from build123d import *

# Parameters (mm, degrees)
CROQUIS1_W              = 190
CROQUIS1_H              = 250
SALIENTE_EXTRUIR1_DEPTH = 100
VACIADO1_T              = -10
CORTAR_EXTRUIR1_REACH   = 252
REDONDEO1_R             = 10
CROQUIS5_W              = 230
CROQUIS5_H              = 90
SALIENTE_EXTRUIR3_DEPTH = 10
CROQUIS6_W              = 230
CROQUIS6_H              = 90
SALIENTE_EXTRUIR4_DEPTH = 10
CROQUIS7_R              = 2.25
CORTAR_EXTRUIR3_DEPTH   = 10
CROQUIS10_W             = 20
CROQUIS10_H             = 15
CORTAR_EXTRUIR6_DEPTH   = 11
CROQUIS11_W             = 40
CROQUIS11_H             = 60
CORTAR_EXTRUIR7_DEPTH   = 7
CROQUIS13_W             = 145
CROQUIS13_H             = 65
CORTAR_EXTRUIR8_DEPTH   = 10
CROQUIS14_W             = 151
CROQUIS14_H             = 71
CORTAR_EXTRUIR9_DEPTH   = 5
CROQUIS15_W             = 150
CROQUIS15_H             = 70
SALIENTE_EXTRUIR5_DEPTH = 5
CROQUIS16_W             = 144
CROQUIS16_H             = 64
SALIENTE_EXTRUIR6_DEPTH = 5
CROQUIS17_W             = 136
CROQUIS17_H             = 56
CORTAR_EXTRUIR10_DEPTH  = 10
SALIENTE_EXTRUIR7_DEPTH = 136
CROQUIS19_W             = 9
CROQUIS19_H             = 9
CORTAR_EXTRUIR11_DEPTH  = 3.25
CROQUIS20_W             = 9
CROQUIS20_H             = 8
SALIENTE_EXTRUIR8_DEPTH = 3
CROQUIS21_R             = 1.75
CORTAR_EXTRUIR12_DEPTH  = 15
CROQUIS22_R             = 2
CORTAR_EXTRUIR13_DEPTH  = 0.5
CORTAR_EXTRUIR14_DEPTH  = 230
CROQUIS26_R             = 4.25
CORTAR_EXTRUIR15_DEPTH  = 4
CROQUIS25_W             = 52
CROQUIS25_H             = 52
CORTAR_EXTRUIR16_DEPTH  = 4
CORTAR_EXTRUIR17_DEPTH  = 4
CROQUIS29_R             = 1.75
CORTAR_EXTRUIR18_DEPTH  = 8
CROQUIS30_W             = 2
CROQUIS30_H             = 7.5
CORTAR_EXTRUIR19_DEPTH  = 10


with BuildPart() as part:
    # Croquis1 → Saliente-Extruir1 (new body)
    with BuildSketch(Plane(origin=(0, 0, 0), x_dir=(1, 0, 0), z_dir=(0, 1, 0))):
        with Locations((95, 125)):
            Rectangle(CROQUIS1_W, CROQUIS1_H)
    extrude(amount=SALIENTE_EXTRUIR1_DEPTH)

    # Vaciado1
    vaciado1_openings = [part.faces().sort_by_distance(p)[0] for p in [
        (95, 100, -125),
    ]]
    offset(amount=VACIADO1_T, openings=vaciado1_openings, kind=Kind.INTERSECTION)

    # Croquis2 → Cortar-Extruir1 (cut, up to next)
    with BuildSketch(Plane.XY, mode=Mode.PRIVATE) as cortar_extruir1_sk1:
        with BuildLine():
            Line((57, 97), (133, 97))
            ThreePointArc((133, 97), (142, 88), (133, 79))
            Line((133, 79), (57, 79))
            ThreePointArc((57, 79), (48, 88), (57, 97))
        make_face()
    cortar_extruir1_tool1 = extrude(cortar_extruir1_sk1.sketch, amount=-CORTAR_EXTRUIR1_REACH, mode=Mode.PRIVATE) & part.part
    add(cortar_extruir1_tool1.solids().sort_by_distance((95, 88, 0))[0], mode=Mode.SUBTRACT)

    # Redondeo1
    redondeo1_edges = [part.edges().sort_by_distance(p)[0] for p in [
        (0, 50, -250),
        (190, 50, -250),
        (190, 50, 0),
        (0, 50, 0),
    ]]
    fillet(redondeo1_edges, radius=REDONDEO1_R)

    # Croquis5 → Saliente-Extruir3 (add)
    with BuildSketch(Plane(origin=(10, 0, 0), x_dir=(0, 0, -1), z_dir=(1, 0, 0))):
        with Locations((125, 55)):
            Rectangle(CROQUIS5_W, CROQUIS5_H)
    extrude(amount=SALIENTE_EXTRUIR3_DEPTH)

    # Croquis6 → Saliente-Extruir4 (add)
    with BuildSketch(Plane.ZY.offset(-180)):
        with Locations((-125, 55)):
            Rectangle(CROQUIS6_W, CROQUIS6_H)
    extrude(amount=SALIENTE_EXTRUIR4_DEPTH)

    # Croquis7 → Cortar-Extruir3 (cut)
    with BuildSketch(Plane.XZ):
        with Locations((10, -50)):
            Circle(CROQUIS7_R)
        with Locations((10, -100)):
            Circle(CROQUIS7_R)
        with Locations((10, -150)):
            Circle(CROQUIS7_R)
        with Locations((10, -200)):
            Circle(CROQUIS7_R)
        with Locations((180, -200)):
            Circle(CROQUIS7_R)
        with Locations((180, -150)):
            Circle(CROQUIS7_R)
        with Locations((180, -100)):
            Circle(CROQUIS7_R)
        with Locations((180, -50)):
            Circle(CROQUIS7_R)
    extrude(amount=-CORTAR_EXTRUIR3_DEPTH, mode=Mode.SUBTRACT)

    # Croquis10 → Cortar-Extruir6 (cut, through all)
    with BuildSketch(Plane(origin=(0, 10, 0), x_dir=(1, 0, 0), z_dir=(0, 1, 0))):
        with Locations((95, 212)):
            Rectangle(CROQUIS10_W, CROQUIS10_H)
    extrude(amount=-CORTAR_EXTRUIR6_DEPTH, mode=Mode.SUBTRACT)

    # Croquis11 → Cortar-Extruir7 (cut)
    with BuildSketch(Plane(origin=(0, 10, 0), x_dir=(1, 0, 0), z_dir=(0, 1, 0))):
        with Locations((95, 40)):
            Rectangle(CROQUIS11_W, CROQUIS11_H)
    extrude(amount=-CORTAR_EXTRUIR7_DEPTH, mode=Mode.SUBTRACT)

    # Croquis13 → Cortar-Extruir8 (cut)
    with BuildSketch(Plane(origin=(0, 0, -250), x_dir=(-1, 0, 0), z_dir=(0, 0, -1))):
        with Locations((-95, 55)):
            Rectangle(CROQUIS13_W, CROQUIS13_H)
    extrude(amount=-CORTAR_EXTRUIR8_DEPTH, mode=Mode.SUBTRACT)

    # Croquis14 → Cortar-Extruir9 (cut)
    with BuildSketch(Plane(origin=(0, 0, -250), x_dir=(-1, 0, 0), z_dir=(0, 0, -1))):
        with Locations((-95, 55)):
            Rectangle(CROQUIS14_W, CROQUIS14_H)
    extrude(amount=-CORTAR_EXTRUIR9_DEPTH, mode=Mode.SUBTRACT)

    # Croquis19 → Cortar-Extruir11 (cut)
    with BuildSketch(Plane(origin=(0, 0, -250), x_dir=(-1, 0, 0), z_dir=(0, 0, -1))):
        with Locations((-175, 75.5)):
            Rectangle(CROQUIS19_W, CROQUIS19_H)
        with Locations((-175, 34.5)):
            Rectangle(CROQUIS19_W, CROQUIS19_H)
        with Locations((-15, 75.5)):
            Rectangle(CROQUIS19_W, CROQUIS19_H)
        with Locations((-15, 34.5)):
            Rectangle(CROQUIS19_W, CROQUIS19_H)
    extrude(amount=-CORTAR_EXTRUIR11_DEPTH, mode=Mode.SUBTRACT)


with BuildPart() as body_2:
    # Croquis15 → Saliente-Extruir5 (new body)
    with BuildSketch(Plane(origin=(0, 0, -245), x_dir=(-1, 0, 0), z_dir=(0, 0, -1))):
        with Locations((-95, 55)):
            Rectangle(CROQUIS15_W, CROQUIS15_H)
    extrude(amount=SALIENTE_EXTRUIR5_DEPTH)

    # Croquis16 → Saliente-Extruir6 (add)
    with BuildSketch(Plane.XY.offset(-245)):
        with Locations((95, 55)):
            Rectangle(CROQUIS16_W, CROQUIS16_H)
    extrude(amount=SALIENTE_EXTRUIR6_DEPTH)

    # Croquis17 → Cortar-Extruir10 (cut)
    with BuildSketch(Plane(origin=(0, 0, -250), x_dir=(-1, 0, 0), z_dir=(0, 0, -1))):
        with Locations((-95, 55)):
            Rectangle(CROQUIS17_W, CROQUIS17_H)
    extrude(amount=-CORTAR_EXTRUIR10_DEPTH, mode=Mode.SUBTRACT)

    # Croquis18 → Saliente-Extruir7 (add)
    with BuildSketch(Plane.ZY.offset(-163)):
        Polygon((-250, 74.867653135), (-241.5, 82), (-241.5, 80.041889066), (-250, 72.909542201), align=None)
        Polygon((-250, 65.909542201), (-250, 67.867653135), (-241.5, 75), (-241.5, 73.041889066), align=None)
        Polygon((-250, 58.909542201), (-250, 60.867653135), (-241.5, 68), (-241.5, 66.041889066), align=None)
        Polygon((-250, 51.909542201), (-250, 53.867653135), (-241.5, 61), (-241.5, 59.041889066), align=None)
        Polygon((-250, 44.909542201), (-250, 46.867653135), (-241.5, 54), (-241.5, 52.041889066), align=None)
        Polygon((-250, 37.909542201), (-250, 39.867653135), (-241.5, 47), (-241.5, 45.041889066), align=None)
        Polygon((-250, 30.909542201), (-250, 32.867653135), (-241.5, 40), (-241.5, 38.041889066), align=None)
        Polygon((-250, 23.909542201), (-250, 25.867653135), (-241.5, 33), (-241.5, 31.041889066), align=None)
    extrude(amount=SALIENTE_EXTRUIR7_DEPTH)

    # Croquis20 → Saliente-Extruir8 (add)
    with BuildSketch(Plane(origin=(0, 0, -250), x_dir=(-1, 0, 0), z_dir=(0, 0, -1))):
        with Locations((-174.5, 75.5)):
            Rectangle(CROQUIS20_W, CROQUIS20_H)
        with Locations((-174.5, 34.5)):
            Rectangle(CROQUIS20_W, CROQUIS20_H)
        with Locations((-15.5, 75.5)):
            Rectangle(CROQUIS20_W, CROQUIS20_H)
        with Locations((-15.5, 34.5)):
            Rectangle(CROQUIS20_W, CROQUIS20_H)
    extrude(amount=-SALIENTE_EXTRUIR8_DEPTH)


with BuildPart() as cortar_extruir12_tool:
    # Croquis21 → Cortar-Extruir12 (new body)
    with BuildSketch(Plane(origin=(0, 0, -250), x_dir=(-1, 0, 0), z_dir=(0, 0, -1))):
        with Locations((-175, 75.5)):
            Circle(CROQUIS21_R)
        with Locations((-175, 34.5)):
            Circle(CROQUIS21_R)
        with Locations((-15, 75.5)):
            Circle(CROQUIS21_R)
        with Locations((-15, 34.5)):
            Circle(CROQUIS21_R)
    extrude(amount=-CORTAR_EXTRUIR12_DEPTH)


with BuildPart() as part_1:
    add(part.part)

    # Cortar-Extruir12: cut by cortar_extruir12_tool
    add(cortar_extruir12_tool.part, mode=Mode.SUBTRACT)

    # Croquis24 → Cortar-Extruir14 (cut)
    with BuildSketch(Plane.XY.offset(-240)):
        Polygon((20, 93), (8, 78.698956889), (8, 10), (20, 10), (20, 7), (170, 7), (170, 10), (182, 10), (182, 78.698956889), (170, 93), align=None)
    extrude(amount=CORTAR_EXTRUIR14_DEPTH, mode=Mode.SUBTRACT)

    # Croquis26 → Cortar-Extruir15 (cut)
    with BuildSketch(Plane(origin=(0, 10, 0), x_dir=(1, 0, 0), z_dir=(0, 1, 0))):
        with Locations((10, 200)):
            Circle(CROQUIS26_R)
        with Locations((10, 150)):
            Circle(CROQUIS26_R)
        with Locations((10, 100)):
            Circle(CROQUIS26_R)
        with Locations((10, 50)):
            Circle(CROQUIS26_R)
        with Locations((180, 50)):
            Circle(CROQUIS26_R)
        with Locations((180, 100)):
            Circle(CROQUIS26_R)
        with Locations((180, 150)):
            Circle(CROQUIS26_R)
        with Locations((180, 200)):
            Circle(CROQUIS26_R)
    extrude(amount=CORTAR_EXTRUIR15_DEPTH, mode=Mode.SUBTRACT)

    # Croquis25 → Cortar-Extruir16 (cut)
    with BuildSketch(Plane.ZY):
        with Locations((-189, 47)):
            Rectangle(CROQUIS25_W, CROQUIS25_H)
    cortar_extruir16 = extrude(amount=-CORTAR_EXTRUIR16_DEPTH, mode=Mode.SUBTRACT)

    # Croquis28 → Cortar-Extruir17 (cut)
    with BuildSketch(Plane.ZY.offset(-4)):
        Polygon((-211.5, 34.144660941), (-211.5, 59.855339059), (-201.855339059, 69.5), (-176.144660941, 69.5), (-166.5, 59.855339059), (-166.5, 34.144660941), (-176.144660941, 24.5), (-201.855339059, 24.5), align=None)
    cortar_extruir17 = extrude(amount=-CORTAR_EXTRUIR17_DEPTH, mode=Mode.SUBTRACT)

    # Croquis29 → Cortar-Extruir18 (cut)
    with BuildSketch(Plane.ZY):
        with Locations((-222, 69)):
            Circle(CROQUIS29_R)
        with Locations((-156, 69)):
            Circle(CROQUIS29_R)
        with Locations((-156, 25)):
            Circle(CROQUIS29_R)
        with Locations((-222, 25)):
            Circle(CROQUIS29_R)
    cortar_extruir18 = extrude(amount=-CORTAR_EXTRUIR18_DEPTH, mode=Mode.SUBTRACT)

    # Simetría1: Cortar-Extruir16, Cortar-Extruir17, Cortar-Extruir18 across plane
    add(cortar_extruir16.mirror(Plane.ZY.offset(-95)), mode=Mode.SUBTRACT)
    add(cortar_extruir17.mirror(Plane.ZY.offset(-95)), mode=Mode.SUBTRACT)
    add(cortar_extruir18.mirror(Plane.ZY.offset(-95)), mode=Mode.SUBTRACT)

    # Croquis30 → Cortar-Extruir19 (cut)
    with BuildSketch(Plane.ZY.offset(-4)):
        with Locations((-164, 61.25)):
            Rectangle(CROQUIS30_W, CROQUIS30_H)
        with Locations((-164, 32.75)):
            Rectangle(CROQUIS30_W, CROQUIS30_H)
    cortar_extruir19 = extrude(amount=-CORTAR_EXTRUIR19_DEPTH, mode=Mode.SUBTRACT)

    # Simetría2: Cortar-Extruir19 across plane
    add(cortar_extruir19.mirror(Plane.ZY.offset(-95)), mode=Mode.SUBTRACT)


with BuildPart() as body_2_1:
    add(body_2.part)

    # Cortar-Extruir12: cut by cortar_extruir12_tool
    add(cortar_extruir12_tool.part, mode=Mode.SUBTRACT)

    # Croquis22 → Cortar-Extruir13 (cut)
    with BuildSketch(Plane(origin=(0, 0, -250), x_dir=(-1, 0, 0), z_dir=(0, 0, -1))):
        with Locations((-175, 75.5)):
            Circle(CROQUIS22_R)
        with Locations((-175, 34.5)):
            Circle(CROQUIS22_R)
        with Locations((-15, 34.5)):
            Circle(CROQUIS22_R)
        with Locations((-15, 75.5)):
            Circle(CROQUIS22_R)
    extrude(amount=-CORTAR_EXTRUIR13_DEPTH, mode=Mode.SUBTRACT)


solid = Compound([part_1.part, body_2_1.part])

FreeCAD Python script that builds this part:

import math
import FreeCAD as App
import Part
import Sketcher
Q = App.Units.Quantity


def edges_at(feature, points):
    """Names of the edges that pass closest to the given points."""
    edges = feature.Shape.Edges
    near = lambda p: min(range(len(edges)), key=lambda i: edges[i].distToShape(Part.Vertex(*p))[0])
    return sorted({f"Edge{near(p) + 1}" for p in points})


def faces_at(feature, points):
    """Names of the faces that lie closest to the given points."""
    faces = feature.Shape.Faces
    near = lambda p: min(range(len(faces)), key=lambda i: faces[i].distToShape(Part.Vertex(*p))[0])
    return sorted({f"Face{near(p) + 1}" for p in points})


def add_polygon(sketch, points):
    """Adds a closed chain of lines whose ends are joined by coincident constraints."""
    first, n = sketch.GeometryCount, len(points)
    for a, b in zip(points, points[1:] + points[:1]):
        sketch.addGeometry(Part.LineSegment(App.Vector(*a, 0), App.Vector(*b, 0)), False)
    for i in range(n):
        sketch.addConstraint(Sketcher.Constraint("Coincident", first + i, 2, first + (i + 1) % n, 1))

doc = App.newDocument("Part")
body = doc.addObject("PartDesign::Body", "Body")

# Sketch on XZ plane
sketch1 = body.newObject("Sketcher::SketchObject", "Sketch")
sketch1.AttachmentSupport = (doc.getObject("XZ_Plane"), [""])
sketch1.MapMode = "FlatFace"
add_polygon(sketch1, [(0, -250), (0, 0), (190, 0), (190, -250)])  # lines 0-3
sketch1.addConstraint([
    Sketcher.Constraint("Vertical", 0),
    Sketcher.Constraint("Horizontal", 1),
    Sketcher.Constraint("Vertical", 2),
    Sketcher.Constraint("Horizontal", 3),
    Sketcher.Constraint("Coincident", 0, 2, -1, 1),
    Sketcher.Constraint("DistanceX", 1, 1, 1, 2, 190.0),
    Sketcher.Constraint("DistanceY", 0, 1, 0, 2, 250.0),
])
pad1 = body.newObject("PartDesign::Pad", "Pad")
pad1.Profile = sketch1
pad1.Length = 100
pad1.Reversed = True
doc.recompute()

thickness = body.newObject("PartDesign::Thickness", "Thickness")
thickness.Base = (pad1, faces_at(pad1, [(95, 100, -125)]))
thickness.Value = 10
thickness.Reversed = True
thickness.Join = "Intersection"

# Sketch on XY plane
sketch2 = body.newObject("Sketcher::SketchObject", "Sketch001")
sketch2.AttachmentSupport = (doc.getObject("XY_Plane"), [""])
sketch2.MapMode = "FlatFace"
sketch2.addGeometry([
    Part.LineSegment(App.Vector(133, 97, 0), App.Vector(57, 97, 0)),
    Part.ArcOfCircle(Part.Circle(App.Vector(57, 88, 0), App.Vector(0, 0, 1), 9), math.radians(90), math.radians(270)),
    Part.LineSegment(App.Vector(57, 79, 0), App.Vector(133, 79, 0)),
    Part.ArcOfCircle(Part.Circle(App.Vector(133, 88, 0), App.Vector(0, 0, 1), 9), math.radians(-90), math.radians(90)),
], False)
sketch2.addConstraint([
    Sketcher.Constraint("Tangent", 0, 2, 1, 1),
    Sketcher.Constraint("Tangent", 1, 2, 2, 1),
    Sketcher.Constraint("Tangent", 2, 2, 3, 1),
    Sketcher.Constraint("Tangent", 3, 2, 0, 1),
    Sketcher.Constraint("Horizontal", 0),
    Sketcher.Constraint("Horizontal", 2),
    Sketcher.Constraint("Radius", 1, 9.0),
    Sketcher.Constraint("DistanceX", 0, 2, 0, 1, 76.0),
    Sketcher.Constraint("DistanceX", -1, 1, 1, 3, 57.0),
    Sketcher.Constraint("DistanceY", -1, 1, 1, 3, 88.0),
])
pocket1 = body.newObject("PartDesign::Pocket", "Pocket")
pocket1.Profile = sketch2
pocket1.Type = "UpToFirst"
doc.recompute()

fillet = body.newObject("PartDesign::Fillet", "Fillet")
fillet.Base = (pocket1, edges_at(pocket1, [
    (0, 50, -250),
    (190, 50, -250),
    (190, 50, 0),
    (0, 50, 0),
]))
fillet.Radius = 10

# Sketch on YZ plane
sketch3 = body.newObject("Sketcher::SketchObject", "Sketch002")
sketch3.AttachmentSupport = (doc.getObject("YZ_Plane"), [""])
sketch3.MapMode = "FlatFace"
sketch3.AttachmentOffset = App.Placement(App.Vector(0, 0, 10), App.Rotation())
add_polygon(sketch3, [(100, -10), (10, -10), (10, -240), (100, -240)])  # lines 0-3
sketch3.addConstraint([
    Sketcher.Constraint("Horizontal", 0),
    Sketcher.Constraint("Vertical", 1),
    Sketcher.Constraint("Horizontal", 2),
    Sketcher.Constraint("Vertical", 3),
    Sketcher.Constraint("DistanceX", 0, 2, 0, 1, 90.0),
    Sketcher.Constraint("DistanceY", 1, 2, 1, 1, 230.0),
    Sketcher.Constraint("DistanceX", -1, 1, 0, 2, 10.0),
    Sketcher.Constraint("DistanceY", 0, 2, -1, 1, 10.0),
])
pad2 = body.newObject("PartDesign::Pad", "Pad001")
pad2.Profile = sketch3
pad2.Length = 10

# Sketch on YZ plane
sketch4 = body.newObject("Sketcher::SketchObject", "Sketch003")
sketch4.AttachmentSupport = (doc.getObject("YZ_Plane"), [""])
sketch4.MapMode = "FlatFace"
sketch4.AttachmentOffset = App.Placement(App.Vector(0, 0, 180), App.Rotation())
add_polygon(sketch4, [(100, -240), (10, -240), (10, -10), (100, -10)])  # lines 0-3
sketch4.addConstraint([
    Sketcher.Constraint("Horizontal", 0),
    Sketcher.Constraint("Vertical", 1),
    Sketcher.Constraint("Horizontal", 2),
    Sketcher.Constraint("Vertical", 3),
    Sketcher.Constraint("DistanceX", 0, 2, 0, 1, 90.0),
    Sketcher.Constraint("DistanceY", 1, 1, 1, 2, 230.0),
    Sketcher.Constraint("DistanceX", -1, 1, 0, 2, 10.0),
    Sketcher.Constraint("DistanceY", 0, 2, -1, 1, 240.0),
])
pad3 = body.newObject("PartDesign::Pad", "Pad002")
pad3.Profile = sketch4
pad3.Length = 10
pad3.Reversed = True

# Sketch on XZ plane
sketch5 = body.newObject("Sketcher::SketchObject", "Sketch004")
sketch5.AttachmentSupport = (doc.getObject("XZ_Plane"), [""])
sketch5.MapMode = "FlatFace"
sketch5.addGeometry([
    Part.Circle(App.Vector(10, -50, 0), App.Vector(0, 0, 1), 2.25),  # 0
    Part.Circle(App.Vector(10, -100, 0), App.Vector(0, 0, 1), 2.25),  # 1
    Part.Circle(App.Vector(10, -150, 0), App.Vector(0, 0, 1), 2.25),  # 2
    Part.Circle(App.Vector(10, -200, 0), App.Vector(0, 0, 1), 2.25),  # 3
    Part.Circle(App.Vector(180, -200, 0), App.Vector(0, 0, 1), 2.25),  # 4
    Part.Circle(App.Vector(180, -150, 0), App.Vector(0, 0, 1), 2.25),  # 5
    Part.Circle(App.Vector(180, -100, 0), App.Vector(0, 0, 1), 2.25),  # 6
    Part.Circle(App.Vector(180, -50, 0), App.Vector(0, 0, 1), 2.25),  # 7
], False)
sketch5.addConstraint([
    Sketcher.Constraint("Equal", 0, 1),
    Sketcher.Constraint("Equal", 1, 2),
    Sketcher.Constraint("Equal", 2, 3),
    Sketcher.Constraint("Equal", 3, 4),
    Sketcher.Constraint("Equal", 4, 5),
    Sketcher.Constraint("Equal", 5, 6),
    Sketcher.Constraint("Equal", 6, 7),
    Sketcher.Constraint("Horizontal", 3, 3, 4, 3),
    Sketcher.Constraint("Horizontal", 2, 3, 5, 3),
    Sketcher.Constraint("Horizontal", 1, 3, 6, 3),
    Sketcher.Constraint("Horizontal", 0, 3, 7, 3),
    Sketcher.Constraint("Vertical", 0, 3, 1, 3),
    Sketcher.Constraint("Vertical", 1, 3, 2, 3),
    Sketcher.Constraint("Vertical", 2, 3, 3, 3),
    Sketcher.Constraint("Vertical", 4, 3, 5, 3),
    Sketcher.Constraint("Vertical", 5, 3, 6, 3),
    Sketcher.Constraint("Vertical", 6, 3, 7, 3),
    Sketcher.Constraint("Diameter", 0, 4.5),
    Sketcher.Constraint("DistanceX", -1, 1, 0, 3, 10.0),
    Sketcher.Constraint("DistanceY", 0, 3, -1, 1, 50.0),
    Sketcher.Constraint("DistanceY", 1, 3, -1, 1, 100.0),
    Sketcher.Constraint("DistanceY", 2, 3, -1, 1, 150.0),
    Sketcher.Constraint("DistanceY", 3, 3, -1, 1, 200.0),
    Sketcher.Constraint("DistanceX", -1, 1, 4, 3, 180.0),
])
pocket2 = body.newObject("PartDesign::Pocket", "Pocket001")
pocket2.Profile = sketch5
pocket2.Length = 10

# Sketch on XZ plane
sketch6 = body.newObject("Sketcher::SketchObject", "Sketch005")
sketch6.AttachmentSupport = (doc.getObject("XZ_Plane"), [""])
sketch6.MapMode = "FlatFace"
sketch6.AttachmentOffset = App.Placement(App.Vector(0, 0, -10), App.Rotation())
add_polygon(sketch6, [(85, -219.5), (85, -204.5), (105, -204.5), (105, -219.5)])  # lines 0-3
sketch6.addConstraint([
    Sketcher.Constraint("Vertical", 0),
    Sketcher.Constraint("Horizontal", 1),
    Sketcher.Constraint("Vertical", 2),
    Sketcher.Constraint("Horizontal", 3),
    Sketcher.Constraint("DistanceX", 1, 1, 1, 2, 20.0),
    Sketcher.Constraint("DistanceY", 0, 1, 0, 2, 15.0),
    Sketcher.Constraint("DistanceX", -1, 1, 0, 2, 85.0),
    Sketcher.Constraint("DistanceY", 0, 2, -1, 1, 204.5),
])
pocket3 = body.newObject("PartDesign::Pocket", "Pocket002")
pocket3.Profile = sketch6
pocket3.Type = "ThroughAll"
pocket3.Reversed = True

# Sketch on XZ plane
sketch7 = body.newObject("Sketcher::SketchObject", "Sketch006")
sketch7.AttachmentSupport = (doc.getObject("XZ_Plane"), [""])
sketch7.MapMode = "FlatFace"
sketch7.AttachmentOffset = App.Placement(App.Vector(0, 0, -10), App.Rotation())
add_polygon(sketch7, [(75, -70), (75, -10), (115, -10), (115, -70)])  # lines 0-3
sketch7.addConstraint([
    Sketcher.Constraint("Vertical", 0),
    Sketcher.Constraint("Horizontal", 1),
    Sketcher.Constraint("Vertical", 2),
    Sketcher.Constraint("Horizontal", 3),
    Sketcher.Constraint("DistanceX", 1, 1, 1, 2, 40.0),
    Sketcher.Constraint("DistanceY", 0, 1, 0, 2, 60.0),
    Sketcher.Constraint("DistanceX", -1, 1, 0, 2, 75.0),
    Sketcher.Constraint("DistanceY", 0, 2, -1, 1, 10.0),
])
pocket4 = body.newObject("PartDesign::Pocket", "Pocket003")
pocket4.Profile = sketch7
pocket4.Length = 7
pocket4.Reversed = True

# Sketch on XY plane
sketch8 = body.newObject("Sketcher::SketchObject", "Sketch007")
sketch8.AttachmentSupport = (doc.getObject("XY_Plane"), [""])
sketch8.MapMode = "FlatFace"
sketch8.AttachmentOffset = App.Placement(App.Vector(0, 0, -250), App.Rotation())
add_polygon(sketch8, [(167.5, 87.5), (167.5, 22.5), (22.5, 22.5), (22.5, 87.5)])  # lines 0-3
sketch8.addConstraint([
    Sketcher.Constraint("Vertical", 0),
    Sketcher.Constraint("Horizontal", 1),
    Sketcher.Constraint("Vertical", 2),
    Sketcher.Constraint("Horizontal", 3),
    Sketcher.Constraint("DistanceX", 1, 2, 1, 1, 145.0),
    Sketcher.Constraint("DistanceY", 0, 2, 0, 1, 65.0),
    Sketcher.Constraint("DistanceX", -1, 1, 0, 2, 167.5),
    Sketcher.Constraint("DistanceY", -1, 1, 0, 2, 22.5),
])
pocket5 = body.newObject("PartDesign::Pocket", "Pocket004")
pocket5.Profile = sketch8
pocket5.Length = 10
pocket5.Reversed = True

# Sketch on XY plane
sketch9 = body.newObject("Sketcher::SketchObject", "Sketch008")
sketch9.AttachmentSupport = (doc.getObject("XY_Plane"), [""])
sketch9.MapMode = "FlatFace"
sketch9.AttachmentOffset = App.Placement(App.Vector(0, 0, -250), App.Rotation())
add_polygon(sketch9, [(170.5, 90.5), (170.5, 19.5), (19.5, 19.5), (19.5, 90.5)])  # lines 0-3
sketch9.addConstraint([
    Sketcher.Constraint("Vertical", 0),
    Sketcher.Constraint("Horizontal", 1),
    Sketcher.Constraint("Vertical", 2),
    Sketcher.Constraint("Horizontal", 3),
    Sketcher.Constraint("DistanceX", 1, 2, 1, 1, 151.0),
    Sketcher.Constraint("DistanceY", 0, 2, 0, 1, 71.0),
    Sketcher.Constraint("DistanceX", -1, 1, 0, 2, 170.5),
    Sketcher.Constraint("DistanceY", -1, 1, 0, 2, 19.5),
])
pocket6 = body.newObject("PartDesign::Pocket", "Pocket005")
pocket6.Profile = sketch9
pocket6.Length = 5
pocket6.Reversed = True

# Sketch on XY plane
sketch10 = body.newObject("Sketcher::SketchObject", "Sketch009")
sketch10.AttachmentSupport = (doc.getObject("XY_Plane"), [""])
sketch10.MapMode = "FlatFace"
sketch10.AttachmentOffset = App.Placement(App.Vector(0, 0, -250), App.Rotation())
add_polygon(sketch10, [(179.5, 80), (179.5, 71), (170.5, 71), (170.5, 80)])  # lines 0-3
add_polygon(sketch10, [(179.5, 39), (179.5, 30), (170.5, 30), (170.5, 39)])  # lines 4-7
add_polygon(sketch10, [(19.5, 80), (19.5, 71), (10.5, 71), (10.5, 80)])  # lines 8-11
add_polygon(sketch10, [(19.5, 39), (19.5, 30), (10.5, 30), (10.5, 39)])  # lines 12-15
sketch10.addConstraint([
    Sketcher.Constraint("Vertical", 0),
    Sketcher.Constraint("Horizontal", 1),
    Sketcher.Constraint("Vertical", 2),
    Sketcher.Constraint("Horizontal", 3),
    Sketcher.Constraint("Vertical", 4),
    Sketcher.Constraint("Horizontal", 5),
    Sketcher.Constraint("Vertical", 6),
    Sketcher.Constraint("Horizontal", 7),
    Sketcher.Constraint("Vertical", 8),
    Sketcher.Constraint("Horizontal", 9),
    Sketcher.Constraint("Vertical", 10),
    Sketcher.Constraint("Horizontal", 11),
    Sketcher.Constraint("Vertical", 12),
    Sketcher.Constraint("Horizontal", 13),
    Sketcher.Constraint("Vertical", 14),
    Sketcher.Constraint("Horizontal", 15),
    Sketcher.Constraint("Horizontal", 1, 2, 8, 2),
    Sketcher.Constraint("Horizontal", 3, 2, 10, 2),
    Sketcher.Constraint("Horizontal", 5, 2, 12, 2),
    Sketcher.Constraint("Horizontal", 7, 2, 14, 2),
    Sketcher.Constraint("Vertical", 3, 2, 4, 2),
    Sketcher.Constraint("Vertical", 2, 2, 5, 2),
    Sketcher.Constraint("Vertical", 11, 2, 12, 2),
    Sketcher.Constraint("Vertical", 10, 2, 13, 2),
    Sketcher.Constraint("Equal", 7, 9),
    Sketcher.Constraint("Equal", 15, 0),
    Sketcher.Constraint("Equal", 2, 4),
    Sketcher.Constraint("DistanceX", 1, 2, 1, 1, 9.0),
    Sketcher.Constraint("DistanceY", -1, 1, 0, 2, 71.0),
    Sketcher.Constraint("DistanceY", -1, 1, 4, 2, 30.0),
    Sketcher.Constraint("DistanceX", 8, 2, 1, 2, 151.0),
    Sketcher.Constraint("DistanceX", -1, 1, 0, 2, 179.5),
])
pocket7 = body.newObject("PartDesign::Pocket", "Pocket006")
pocket7.Profile = sketch10
pocket7.Length = 3.25
pocket7.Reversed = True
body2 = doc.addObject("PartDesign::Body", "Body001")

# Sketch on XY plane
sketch11 = body2.newObject("Sketcher::SketchObject", "Sketch010")
sketch11.AttachmentSupport = (doc.getObject("XY_Plane001"), [""])
sketch11.MapMode = "FlatFace"
sketch11.AttachmentOffset = App.Placement(App.Vector(0, 0, -245), App.Rotation())
add_polygon(sketch11, [(170, 90), (170, 20), (20, 20), (20, 90)])  # lines 0-3
sketch11.addConstraint([
    Sketcher.Constraint("Vertical", 0),
    Sketcher.Constraint("Horizontal", 1),
    Sketcher.Constraint("Vertical", 2),
    Sketcher.Constraint("Horizontal", 3),
    Sketcher.Constraint("DistanceX", 1, 2, 1, 1, 150.0),
    Sketcher.Constraint("DistanceY", 0, 2, 0, 1, 70.0),
    Sketcher.Constraint("DistanceX", -1, 1, 0, 2, 170.0),
    Sketcher.Constraint("DistanceY", -1, 1, 0, 2, 20.0),
])
pad4 = body2.newObject("PartDesign::Pad", "Pad003")
pad4.Profile = sketch11
pad4.Length = 5
pad4.Reversed = True

# Sketch on XY plane
sketch12 = body2.newObject("Sketcher::SketchObject", "Sketch011")
sketch12.AttachmentSupport = (doc.getObject("XY_Plane001"), [""])
sketch12.MapMode = "FlatFace"
sketch12.AttachmentOffset = App.Placement(App.Vector(0, 0, -245), App.Rotation())
add_polygon(sketch12, [(23, 87), (23, 23), (167, 23), (167, 87)])  # lines 0-3
sketch12.addConstraint([
    Sketcher.Constraint("Vertical", 0),
    Sketcher.Constraint("Horizontal", 1),
    Sketcher.Constraint("Vertical", 2),
    Sketcher.Constraint("Horizontal", 3),
    Sketcher.Constraint("DistanceX", 1, 1, 1, 2, 144.0),
    Sketcher.Constraint("DistanceY", 0, 2, 0, 1, 64.0),
    Sketcher.Constraint("DistanceX", -1, 1, 0, 2, 23.0),
    Sketcher.Constraint("DistanceY", -1, 1, 0, 2, 23.0),
])
pad5 = body2.newObject("PartDesign::Pad", "Pad004")
pad5.Profile = sketch12
pad5.Length = 5

# Sketch on XY plane
sketch13 = body2.newObject("Sketcher::SketchObject", "Sketch012")
sketch13.AttachmentSupport = (doc.getObject("XY_Plane001"), [""])
sketch13.MapMode = "FlatFace"
sketch13.AttachmentOffset = App.Placement(App.Vector(0, 0, -250), App.Rotation())
add_polygon(sketch13, [(163, 83), (163, 27), (27, 27), (27, 83)])  # lines 0-3
sketch13.addConstraint([
    Sketcher.Constraint("Vertical", 0),
    Sketcher.Constraint("Horizontal", 1),
    Sketcher.Constraint("Vertical", 2),
    Sketcher.Constraint("Horizontal", 3),
    Sketcher.Constraint("DistanceX", 1, 2, 1, 1, 136.0),
    Sketcher.Constraint("DistanceY", 0, 2, 0, 1, 56.0),
    Sketcher.Constraint("DistanceX", -1, 1, 0, 2, 163.0),
    Sketcher.Constraint("DistanceY", -1, 1, 0, 2, 27.0),
])
pocket8 = body2.newObject("PartDesign::Pocket", "Pocket007")
pocket8.Profile = sketch13
pocket8.Length = 10
pocket8.Reversed = True

# Sketch on YZ plane
sketch14 = body2.newObject("Sketcher::SketchObject", "Sketch013")
sketch14.AttachmentSupport = (doc.getObject("YZ_Plane001"), [""])
sketch14.MapMode = "FlatFace"
sketch14.AttachmentOffset = App.Placement(App.Vector(0, 0, 163), App.Rotation())
add_polygon(sketch14, [(82, -241.5), (74.867653, -250), (72.909542, -250), (80.041889, -241.5)])  # lines 0-3
add_polygon(sketch14, [(67.867653, -250), (65.909542, -250), (73.041889, -241.5), (75, -241.5)])  # lines 4-7
add_polygon(sketch14, [(60.867653, -250), (58.909542, -250), (66.041889, -241.5), (68, -241.5)])  # lines 8-11
add_polygon(sketch14, [(53.867653, -250), (51.909542, -250), (59.041889, -241.5), (61, -241.5)])  # lines 12-15
add_polygon(sketch14, [(46.867653, -250), (44.909542, -250), (52.041889, -241.5), (54, -241.5)])  # lines 16-19
add_polygon(sketch14, [(39.867653, -250), (37.909542, -250), (45.041889, -241.5), (47, -241.5)])  # lines 20-23
add_polygon(sketch14, [(32.867653, -250), (30.909542, -250), (38.041889, -241.5), (40, -241.5)])  # lines 24-27
add_polygon(sketch14, [(25.867653, -250), (23.909542, -250), (31.041889, -241.5), (33, -241.5)])  # lines 28-31
sketch14.addConstraint([
    Sketcher.Constraint("Horizontal", 1),
    Sketcher.Constraint("Horizontal", 3),
    Sketcher.Constraint("Horizontal", 4),
    Sketcher.Constraint("Horizontal", 6),
    Sketcher.Constraint("Horizontal", 8),
    Sketcher.Constraint("Horizontal", 10),
    Sketcher.Constraint("Horizontal", 12),
    Sketcher.Constraint("Horizontal", 14),
    Sketcher.Constraint("Horizontal", 16),
    Sketcher.Constraint("Horizontal", 18),
    Sketcher.Constraint("Horizontal", 20),
    Sketcher.Constraint("Horizontal", 22),
    Sketcher.Constraint("Horizontal", 24),
    Sketcher.Constraint("Horizontal", 26),
    Sketcher.Constraint("Horizontal", 28),
    Sketcher.Constraint("Horizontal", 30),
    Sketcher.Constraint("Parallel", 0, 2),
    Sketcher.Constraint("Parallel", 2, 5),
    Sketcher.Constraint("Parallel", 5, 7),
    Sketcher.Constraint("Parallel", 7, 9),
    Sketcher.Constraint("Parallel", 9, 11),
    Sketcher.Constraint("Parallel", 11, 13),
    Sketcher.Constraint("Parallel", 13, 15),
    Sketcher.Constraint("Parallel", 15, 17),
    Sketcher.Constraint("Parallel", 17, 19),
    Sketcher.Constraint("Parallel", 19, 21),
    Sketcher.Constraint("Parallel", 21, 23),
    Sketcher.Constraint("Parallel", 23, 25),
    Sketcher.Constraint("Parallel", 25, 27),
    Sketcher.Constraint("Parallel", 27, 29),
    Sketcher.Constraint("Parallel", 29, 31),
    Sketcher.Constraint("Horizontal", 1, 2, 4, 2),
    Sketcher.Constraint("Horizontal", 3, 2, 5, 2),
    Sketcher.Constraint("Horizontal", 7, 2, 8, 2),
    Sketcher.Constraint("Horizontal", 6, 2, 9, 2),
    Sketcher.Constraint("Horizontal", 11, 2, 12, 2),
    Sketcher.Constraint("Horizontal", 10, 2, 13, 2),
    Sketcher.Constraint("Horizontal", 15, 2, 16, 2),
    Sketcher.Constraint("Horizontal", 14, 2, 17, 2),
    Sketcher.Constraint("Horizontal", 19, 2, 20, 2),
    Sketcher.Constraint("Horizontal", 18, 2, 21, 2),
    Sketcher.Constraint("Horizontal", 23, 2, 24, 2),
    Sketcher.Constraint("Horizontal", 22, 2, 25, 2),
    Sketcher.Constraint("Horizontal", 27, 2, 28, 2),
    Sketcher.Constraint("Horizontal", 26, 2, 29, 2),
    Sketcher.Constraint("Equal", 3, 4),
    Sketcher.Constraint("Equal", 6, 8),
    Sketcher.Constraint("Equal", 10, 12),
    Sketcher.Constraint("Equal", 14, 16),
    Sketcher.Constraint("Equal", 18, 20),
    Sketcher.Constraint("Equal", 22, 24),
    Sketcher.Constraint("Equal", 26, 28),
    Sketcher.Constraint("Angle", 0, Q("-130 deg")),
    Sketcher.Constraint("DistanceY", 0, 2, -1, 1, 250.0),
    Sketcher.Constraint("DistanceX", -1, 1, 3, 2, 82.0),
    Sketcher.Constraint("DistanceX", -1, 1, 6, 2, 75.0),
    Sketcher.Constraint("DistanceX", -1, 1, 10, 2, 68.0),
    Sketcher.Constraint("DistanceX", -1, 1, 14, 2, 61.0),
    Sketcher.Constraint("DistanceX", -1, 1, 18, 2, 54.0),
    Sketcher.Constraint("DistanceX", -1, 1, 22, 2, 47.0),
    Sketcher.Constraint("DistanceX", -1, 1, 26, 2, 40.0),
    Sketcher.Constraint("DistanceX", -1, 1, 30, 2, 33.0),
    Sketcher.Constraint("DistanceY", 2, 2, -1, 1, 241.5),
    Sketcher.Constraint("DistanceX", 1, 2, 1, 1, 1.958111),
])
pad6 = body2.newObject("PartDesign::Pad", "Pad005")
pad6.Profile = sketch14
pad6.Length = 136
pad6.Reversed = True

# Sketch on XY plane
sketch15 = body2.newObject("Sketcher::SketchObject", "Sketch014")
sketch15.AttachmentSupport = (doc.getObject("XY_Plane001"), [""])
sketch15.MapMode = "FlatFace"
sketch15.AttachmentOffset = App.Placement(App.Vector(0, 0, -250), App.Rotation())
add_polygon(sketch15, [(179, 79.5), (179, 71.5), (170, 71.5), (170, 79.5)])  # lines 0-3
add_polygon(sketch15, [(179, 38.5), (179, 30.5), (170, 30.5), (170, 38.5)])  # lines 4-7
add_polygon(sketch15, [(20, 79.5), (20, 71.5), (11, 71.5), (11, 79.5)])  # lines 8-11
add_polygon(sketch15, [(20, 38.5), (20, 30.5), (11, 30.5), (11, 38.5)])  # lines 12-15
sketch15.addConstraint([
    Sketcher.Constraint("Vertical", 0),
    Sketcher.Constraint("Horizontal", 1),
    Sketcher.Constraint("Vertical", 2),
    Sketcher.Constraint("Horizontal", 3),
    Sketcher.Constraint("Vertical", 4),
    Sketcher.Constraint("Horizontal", 5),
    Sketcher.Constraint("Vertical", 6),
    Sketcher.Constraint("Horizontal", 7),
    Sketcher.Constraint("Vertical", 8),
    Sketcher.Constraint("Horizontal", 9),
    Sketcher.Constraint("Vertical", 10),
    Sketcher.Constraint("Horizontal", 11),
    Sketcher.Constraint("Vertical", 12),
    Sketcher.Constraint("Horizontal", 13),
    Sketcher.Constraint("Vertical", 14),
    Sketcher.Constraint("Horizontal", 15),
    Sketcher.Constraint("Horizontal", 1, 2, 8, 2),
    Sketcher.Constraint("Horizontal", 3, 2, 10, 2),
    Sketcher.Constraint("Horizontal", 5, 2, 12, 2),
    Sketcher.Constraint("Horizontal", 7, 2, 14, 2),
    Sketcher.Constraint("Vertical", 3, 2, 4, 2),
    Sketcher.Constraint("Vertical", 2, 2, 5, 2),
    Sketcher.Constraint("Vertical", 11, 2, 12, 2),
    Sketcher.Constraint("Vertical", 10, 2, 13, 2),
    Sketcher.Constraint("Equal", 7, 9),
    Sketcher.Constraint("Equal", 2, 4),
    Sketcher.Constraint("DistanceX", 1, 2, 1, 1, 9.0),
    Sketcher.Constraint("DistanceY", 0, 2, 0, 1, 8.0),
    Sketcher.Constraint("DistanceX", -1, 1, 0, 2, 179.0),
    Sketcher.Constraint("DistanceX", -1, 1, 8, 2, 20.0),
    Sketcher.Constraint("DistanceY", 4, 2, 0, 2, 41.0),
    Sketcher.Constraint("DistanceY", -1, 1, 0, 2, 71.5),
])
pad7 = body2.newObject("PartDesign::Pad", "Pad006")
pad7.Profile = sketch15
pad7.Length = 3
body3 = doc.addObject("PartDesign::Body", "Body002")
body3.AllowCompound = True

# Sketch on XY plane
sketch16 = body3.newObject("Sketcher::SketchObject", "Sketch015")
sketch16.AttachmentSupport = (doc.getObject("XY_Plane002"), [""])
sketch16.MapMode = "FlatFace"
sketch16.AttachmentOffset = App.Placement(App.Vector(0, 0, -250), App.Rotation())
sketch16.addGeometry([
    Part.Circle(App.Vector(175, 75.5, 0), App.Vector(0, 0, 1), 1.75),
    Part.Circle(App.Vector(175, 34.5, 0), App.Vector(0, 0, 1), 1.75),
    Part.Circle(App.Vector(15, 75.5, 0), App.Vector(0, 0, 1), 1.75),
    Part.Circle(App.Vector(15, 34.5, 0), App.Vector(0, 0, 1), 1.75),
], False)
sketch16.addConstraint([
    Sketcher.Constraint("Equal", 0, 1),
    Sketcher.Constraint("Equal", 1, 2),
    Sketcher.Constraint("Equal", 2, 3),
    Sketcher.Constraint("Horizontal", 0, 3, 2, 3),
    Sketcher.Constraint("Horizontal", 1, 3, 3, 3),
    Sketcher.Constraint("Vertical", 0, 3, 1, 3),
    Sketcher.Constraint("Vertical", 2, 3, 3, 3),
    Sketcher.Constraint("Diameter", 0, 3.5),
    Sketcher.Constraint("DistanceX", -1, 1, 0, 3, 175.0),
    Sketcher.Constraint("DistanceX", -1, 1, 2, 3, 15.0),
    Sketcher.Constraint("DistanceY", 1, 3, 0, 3, 41.0),
    Sketcher.Constraint("DistanceY", -1, 1, 0, 3, 75.5),
])
pad8 = body3.newObject("PartDesign::Pad", "Pad007")
pad8.Profile = sketch16
pad8.Length = 15
doc.recompute()

body4 = doc.addObject("PartDesign::Body", "Body003")
body4.BaseFeature = body3
boolean = body.newObject("PartDesign::Boolean", "Boolean")
boolean.Type = "Cut"
boolean.addObjects([body4])
doc.recompute()

# Sketch on XY plane
sketch17 = body.newObject("Sketcher::SketchObject", "Sketch016")
sketch17.AttachmentSupport = (doc.getObject("XY_Plane"), [""])
sketch17.MapMode = "FlatFace"
sketch17.AttachmentOffset = App.Placement(App.Vector(0, 0, -240), App.Rotation())
add_polygon(sketch17, [(20, 93), (8, 78.698957), (8, 10), (20, 10), (20, 7), (170, 7), (170, 10), (182, 10), (182, 78.698957), (170, 93)])  # lines 0-9
sketch17.addConstraint([
    Sketcher.Constraint("Vertical", 1),
    Sketcher.Constraint("Horizontal", 2),
    Sketcher.Constraint("Vertical", 3),
    Sketcher.Constraint("Horizontal", 4),
    Sketcher.Constraint("Vertical", 5),
    Sketcher.Constraint("Horizontal", 6),
    Sketcher.Constraint("Vertical", 7),
    Sketcher.Constraint("Horizontal", 9),
    Sketcher.Constraint("Horizontal", 2, 2, 5, 2),
    Sketcher.Constraint("Horizontal", 0, 2, 7, 2),
    Sketcher.Constraint("Vertical", 5, 2, 8, 2),
    Sketcher.Constraint("Vertical", 3, 2, 9, 2),
    Sketcher.Constraint("Equal", 2, 6),
    Sketcher.Constraint("DistanceX", 2, 1, 2, 2, 12.0),
    Sketcher.Constraint("DistanceX", 4, 1, 4, 2, 150.0),
    Sketcher.Constraint("DistanceY", 3, 2, 3, 1, 3.0),
    Sketcher.Constraint("Angle", 0, Q("-130 deg")),
    Sketcher.Constraint("DistanceX", -1, 1, 0, 2, 8.0),
    Sketcher.Constraint("DistanceY", -1, 1, 1, 2, 10.0),
    Sketcher.Constraint("DistanceY", -1, 1, 8, 2, 93.0),
])
pocket9 = body.newObject("PartDesign::Pocket", "Pocket008")
pocket9.Profile = sketch17
pocket9.Length = 230
pocket9.Reversed = True

# Sketch on XZ plane
sketch18 = body.newObject("Sketcher::SketchObject", "Sketch017")
sketch18.AttachmentSupport = (doc.getObject("XZ_Plane"), [""])
sketch18.MapMode = "FlatFace"
sketch18.AttachmentOffset = App.Placement(App.Vector(0, 0, -10), App.Rotation())
sketch18.addGeometry([
    Part.Circle(App.Vector(10, -200, 0), App.Vector(0, 0, 1), 4.25),  # 0
    Part.Circle(App.Vector(10, -150, 0), App.Vector(0, 0, 1), 4.25),  # 1
    Part.Circle(App.Vector(10, -100, 0), App.Vector(0, 0, 1), 4.25),  # 2
    Part.Circle(App.Vector(10, -50, 0), App.Vector(0, 0, 1), 4.25),  # 3
    Part.Circle(App.Vector(180, -50, 0), App.Vector(0, 0, 1), 4.25),  # 4
    Part.Circle(App.Vector(180, -100, 0), App.Vector(0, 0, 1), 4.25),  # 5
    Part.Circle(App.Vector(180, -150, 0), App.Vector(0, 0, 1), 4.25),  # 6
    Part.Circle(App.Vector(180, -200, 0), App.Vector(0, 0, 1), 4.25),  # 7
], False)
sketch18.addConstraint([
    Sketcher.Constraint("Equal", 0, 1),
    Sketcher.Constraint("Equal", 1, 2),
    Sketcher.Constraint("Equal", 2, 3),
    Sketcher.Constraint("Equal", 3, 4),
    Sketcher.Constraint("Equal", 4, 5),
    Sketcher.Constraint("Equal", 5, 6),
    Sketcher.Constraint("Equal", 6, 7),
    Sketcher.Constraint("Horizontal", 3, 3, 4, 3),
    Sketcher.Constraint("Horizontal", 2, 3, 5, 3),
    Sketcher.Constraint("Horizontal", 1, 3, 6, 3),
    Sketcher.Constraint("Horizontal", 0, 3, 7, 3),
    Sketcher.Constraint("Vertical", 0, 3, 1, 3),
    Sketcher.Constraint("Vertical", 1, 3, 2, 3),
    Sketcher.Constraint("Vertical", 2, 3, 3, 3),
    Sketcher.Constraint("Vertical", 4, 3, 5, 3),
    Sketcher.Constraint("Vertical", 5, 3, 6, 3),
    Sketcher.Constraint("Vertical", 6, 3, 7, 3),
    Sketcher.Constraint("Diameter", 0, 8.5),
    Sketcher.Constraint("DistanceX", -1, 1, 0, 3, 10.0),
    Sketcher.Constraint("DistanceY", 0, 3, -1, 1, 200.0),
    Sketcher.Constraint("DistanceY", 1, 3, -1, 1, 150.0),
    Sketcher.Constraint("DistanceY", 2, 3, -1, 1, 100.0),
    Sketcher.Constraint("DistanceY", 3, 3, -1, 1, 50.0),
    Sketcher.Constraint("DistanceX", -1, 1, 4, 3, 180.0),
])
pocket10 = body.newObject("PartDesign::Pocket", "Pocket009")
pocket10.Profile = sketch18
pocket10.Length = 4

# Sketch on YZ plane
sketch19 = body.newObject("Sketcher::SketchObject", "Sketch018")
sketch19.AttachmentSupport = (doc.getObject("YZ_Plane"), [""])
sketch19.MapMode = "FlatFace"
add_polygon(sketch19, [(73, -215), (21, -215), (21, -163), (73, -163)])  # lines 0-3
sketch19.addConstraint([
    Sketcher.Constraint("Horizontal", 0),
    Sketcher.Constraint("Vertical", 1),
    Sketcher.Constraint("Horizontal", 2),
    Sketcher.Constraint("Vertical", 3),
    Sketcher.Constraint("Equal", 2, 1),
    Sketcher.Constraint("DistanceX", 0, 2, 0, 1, 52.0),
    Sketcher.Constraint("DistanceX", -1, 1, 0, 2, 21.0),
    Sketcher.Constraint("DistanceY", 0, 2, -1, 1, 215.0),
])
pocket11 = body.newObject("PartDesign::Pocket", "Pocket010")
pocket11.Profile = sketch19
pocket11.Length = 4
pocket11.Reversed = True

# Sketch on YZ plane
sketch20 = body.newObject("Sketcher::SketchObject", "Sketch019")
sketch20.AttachmentSupport = (doc.getObject("YZ_Plane"), [""])
sketch20.MapMode = "FlatFace"
sketch20.AttachmentOffset = App.Placement(App.Vector(0, 0, 4), App.Rotation())
add_polygon(sketch20, [(59.855339, -211.5), (34.144661, -211.5), (24.5, -201.855339), (24.5, -176.144661), (34.144661, -166.5), (59.855339, -166.5), (69.5, -176.144661), (69.5, -201.855339)])  # lines 0-7
sketch20.addConstraint([
    Sketcher.Constraint("Horizontal", 0),
    Sketcher.Constraint("Vertical", 2),
    Sketcher.Constraint("Horizontal", 4),
    Sketcher.Constraint("Vertical", 6),
    Sketcher.Constraint("Perpendicular", 1, 3),
    Sketcher.Constraint("Perpendicular", 3, 5),
    Sketcher.Constraint("Perpendicular", 5, 7),
    Sketcher.Constraint("Horizontal", 2, 2, 5, 2),
    Sketcher.Constraint("Horizontal", 1, 2, 6, 2),
    Sketcher.Constraint("Vertical", 0, 2, 3, 2),
    Sketcher.Constraint("Vertical", 4, 2, 7, 2),
    Sketcher.Constraint("Equal", 4, 2),
    Sketcher.Constraint("DistanceY", 0, 2, 3, 2, 45.0),
    Sketcher.Constraint("DistanceY", 0, 2, -1, 1, 211.5),
    Sketcher.Constraint("DistanceX", -1, 1, 1, 2, 24.5),
    Sketcher.Constraint("DistanceX", 0, 2, 0, 1, 25.710678),
])
pocket12 = body.newObject("PartDesign::Pocket", "Pocket011")
pocket12.Profile = sketch20
pocket12.Length = 4
pocket12.Reversed = True

# Sketch on YZ plane
sketch21 = body.newObject("Sketcher::SketchObject", "Sketch020")
sketch21.AttachmentSupport = (doc.getObject("YZ_Plane"), [""])
sketch21.MapMode = "FlatFace"
sketch21.addGeometry([
    Part.Circle(App.Vector(69, -222, 0), App.Vector(0, 0, 1), 1.75),
    Part.Circle(App.Vector(69, -156, 0), App.Vector(0, 0, 1), 1.75),
    Part.Circle(App.Vector(25, -156, 0), App.Vector(0, 0, 1), 1.75),
    Part.Circle(App.Vector(25, -222, 0), App.Vector(0, 0, 1), 1.75),
], False)
sketch21.addConstraint([
    Sketcher.Constraint("Equal", 0, 1),
    Sketcher.Constraint("Equal", 1, 2),
    Sketcher.Constraint("Equal", 2, 3),
    Sketcher.Constraint("Horizontal", 1, 3, 2, 3),
    Sketcher.Constraint("Horizontal", 0, 3, 3, 3),
    Sketcher.Constraint("Vertical", 0, 3, 1, 3),
    Sketcher.Constraint("Vertical", 2, 3, 3, 3),
    Sketcher.Constraint("Diameter", 0, 3.5),
    Sketcher.Constraint("DistanceX", -1, 1, 0, 3, 69.0),
    Sketcher.Constraint("DistanceY", 0, 3, -1, 1, 222.0),
    Sketcher.Constraint("DistanceY", 1, 3, -1, 1, 156.0),
    Sketcher.Constraint("DistanceX", -1, 1, 2, 3, 25.0),
])
pocket13 = body.newObject("PartDesign::Pocket", "Pocket012")
pocket13.Profile = sketch21
pocket13.Length = 8
pocket13.Reversed = True
doc.recompute()

datumplane = body.newObject("PartDesign::Plane", "DatumPlane")
datumplane.AttachmentSupport = (doc.getObject("YZ_Plane"), [""])
datumplane.MapMode = "FlatFace"
datumplane.AttachmentOffset = App.Placement(App.Vector(0, 0, 95), App.Rotation())
mirrored = body.newObject("PartDesign::Mirrored", "Mirrored")
mirrored.Originals = [pocket11, pocket12, pocket13]
mirrored.MirrorPlane = (datumplane, [""])
body.Tip = mirrored

# Sketch on YZ plane
sketch22 = body.newObject("Sketcher::SketchObject", "Sketch021")
sketch22.AttachmentSupport = (doc.getObject("YZ_Plane"), [""])
sketch22.MapMode = "FlatFace"
sketch22.AttachmentOffset = App.Placement(App.Vector(0, 0, 4), App.Rotation())
add_polygon(sketch22, [(65, -165), (57.5, -165), (57.5, -163), (65, -163)])  # lines 0-3
add_polygon(sketch22, [(36.5, -165), (29, -165), (29, -163), (36.5, -163)])  # lines 4-7
sketch22.addConstraint([
    Sketcher.Constraint("Horizontal", 0),
    Sketcher.Constraint("Vertical", 1),
    Sketcher.Constraint("Horizontal", 2),
    Sketcher.Constraint("Vertical", 3),
    Sketcher.Constraint("Horizontal", 4),
    Sketcher.Constraint("Vertical", 5),
    Sketcher.Constraint("Horizontal", 6),
    Sketcher.Constraint("Vertical", 7),
    Sketcher.Constraint("Horizontal", 3, 2, 4, 2),
    Sketcher.Constraint("Horizontal", 2, 2, 5, 2),
    Sketcher.Constraint("Equal", 2, 4),
    Sketcher.Constraint("DistanceY", 1, 1, 1, 2, 2.0),
    Sketcher.Constraint("DistanceX", 0, 2, 0, 1, 7.5),
    Sketcher.Constraint("DistanceY", 0, 2, -1, 1, 165.0),
    Sketcher.Constraint("DistanceX", -1, 1, 2, 2, 65.0),
    Sketcher.Constraint("DistanceX", -1, 1, 4, 2, 29.0),
])
pocket14 = body.newObject("PartDesign::Pocket", "Pocket013")
pocket14.Profile = sketch22
pocket14.Length = 10
pocket14.Reversed = True
doc.recompute()

datumplane2 = body.newObject("PartDesign::Plane", "DatumPlane001")
datumplane2.AttachmentSupport = (doc.getObject("YZ_Plane"), [""])
datumplane2.MapMode = "FlatFace"
datumplane2.AttachmentOffset = App.Placement(App.Vector(0, 0, 95), App.Rotation())
mirrored2 = body.newObject("PartDesign::Mirrored", "Mirrored001")
mirrored2.Originals = [pocket14]
mirrored2.MirrorPlane = (datumplane2, [""])
body.Tip = mirrored2
doc.recompute()

boolean2 = body2.newObject("PartDesign::Boolean", "Boolean001")
boolean2.Type = "Cut"
boolean2.addObjects([body3])

# Sketch on XY plane
sketch23 = body2.newObject("Sketcher::SketchObject", "Sketch022")
sketch23.AttachmentSupport = (doc.getObject("XY_Plane001"), [""])
sketch23.MapMode = "FlatFace"
sketch23.AttachmentOffset = App.Placement(App.Vector(0, 0, -250), App.Rotation())
sketch23.addGeometry([
    Part.Circle(App.Vector(175, 75.5, 0), App.Vector(0, 0, 1), 2),
    Part.Circle(App.Vector(175, 34.5, 0), App.Vector(0, 0, 1), 2),
    Part.Circle(App.Vector(15, 34.5, 0), App.Vector(0, 0, 1), 2),
    Part.Circle(App.Vector(15, 75.5, 0), App.Vector(0, 0, 1), 2),
], False)
sketch23.addConstraint([
    Sketcher.Constraint("Equal", 0, 1),
    Sketcher.Constraint("Equal", 1, 2),
    Sketcher.Constraint("Equal", 2, 3),
    Sketcher.Constraint("Horizontal", 1, 3, 2, 3),
    Sketcher.Constraint("Horizontal", 0, 3, 3, 3),
    Sketcher.Constraint("Vertical", 0, 3, 1, 3),
    Sketcher.Constraint("Vertical", 2, 3, 3, 3),
    Sketcher.Constraint("Diameter", 0, 4.0),
    Sketcher.Constraint("DistanceX", -1, 1, 0, 3, 175.0),
    Sketcher.Constraint("DistanceX", -1, 1, 2, 3, 15.0),
    Sketcher.Constraint("DistanceY", 1, 3, 0, 3, 41.0),
    Sketcher.Constraint("DistanceY", -1, 1, 0, 3, 75.5),
])
pocket15 = body2.newObject("PartDesign::Pocket", "Pocket014")
pocket15.Profile = sketch23
pocket15.Length = 0.5
pocket15.Reversed = True

doc.recompute()
